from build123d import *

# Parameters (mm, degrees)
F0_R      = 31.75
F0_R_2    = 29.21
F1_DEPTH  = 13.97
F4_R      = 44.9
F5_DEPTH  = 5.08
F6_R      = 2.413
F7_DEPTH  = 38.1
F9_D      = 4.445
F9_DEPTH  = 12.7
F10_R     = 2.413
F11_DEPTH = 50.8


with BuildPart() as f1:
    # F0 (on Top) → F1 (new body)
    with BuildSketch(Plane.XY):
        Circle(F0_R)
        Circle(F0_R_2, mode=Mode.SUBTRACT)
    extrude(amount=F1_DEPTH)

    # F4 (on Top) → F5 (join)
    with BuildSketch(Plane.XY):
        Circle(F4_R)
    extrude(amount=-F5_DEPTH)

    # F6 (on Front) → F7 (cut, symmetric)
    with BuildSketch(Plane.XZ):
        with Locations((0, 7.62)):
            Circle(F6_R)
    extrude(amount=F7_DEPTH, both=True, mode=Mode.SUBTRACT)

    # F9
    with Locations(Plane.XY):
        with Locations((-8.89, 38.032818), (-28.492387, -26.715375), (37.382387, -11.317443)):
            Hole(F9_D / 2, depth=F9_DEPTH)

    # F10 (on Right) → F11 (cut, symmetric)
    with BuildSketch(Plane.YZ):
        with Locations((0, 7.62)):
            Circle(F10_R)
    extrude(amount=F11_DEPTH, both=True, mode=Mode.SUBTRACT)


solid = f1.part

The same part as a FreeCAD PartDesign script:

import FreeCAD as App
import Part
import Sketcher

V = App.Vector
Q = App.Units.Quantity

doc = App.newDocument("Part")
body = doc.addObject("PartDesign::Body", "Body")

# Sketch on XY plane
sketch1 = doc.addObject("Sketcher::SketchObject", "Sketch")
body.addObject(sketch1)
sketch1.AttachmentSupport = (doc.XY_Plane, [""])
sketch1.MapMode = "FlatFace"
sketch1.addGeometry(Part.Circle(V(0, 0, 0), V(0, 0, 1), 32), False)
sketch1.addGeometry(Part.Circle(V(0, 0, 0), V(0, 0, 1), 29), False)
sketch1.addConstraint(Sketcher.Constraint("Coincident", 0, 3, -1, 1))
sketch1.addConstraint(Sketcher.Constraint("Coincident", 1, 3, -1, 1))
sketch1.addConstraint(Sketcher.Constraint("Diameter", 0, Q("2.5 in")))
sketch1.addConstraint(Sketcher.Constraint("Diameter", 1, Q("2.3 in")))
pad1 = doc.addObject("PartDesign::Pad", "Pad")
body.addObject(pad1)
pad1.Profile = sketch1
pad1.Length = Q("0.55 in")

# Sketch on XY plane
sketch2 = doc.addObject("Sketcher::SketchObject", "Sketch001")
body.addObject(sketch2)
sketch2.AttachmentSupport = (doc.XY_Plane, [""])
sketch2.MapMode = "FlatFace"
sketch2.addGeometry(Part.Circle(V(0, 0, 0), V(0, 0, 1), 45), False)
sketch2.addConstraint(Sketcher.Constraint("Coincident", 0, 3, -1, 1))
sketch2.addConstraint(Sketcher.Constraint("Diameter", 0, 89.8))
pad2 = doc.addObject("PartDesign::Pad", "Pad001")
body.addObject(pad2)
pad2.Profile = sketch2
pad2.Length = Q("0.2 in")
pad2.Reversed = True

# Sketch on XZ plane
sketch3 = doc.addObject("Sketcher::SketchObject", "Sketch002")
body.addObject(sketch3)
sketch3.AttachmentSupport = (doc.XZ_Plane, [""])
sketch3.MapMode = "FlatFace"
sketch3.addGeometry(Part.Circle(V(0, 7.6, 0), V(0, 0, 1), 2.4), False)
sketch3.addConstraint(Sketcher.Constraint("PointOnObject", 0, 3, -2))
sketch3.addConstraint(Sketcher.Constraint("Diameter", 0, Q("0.19 in")))
sketch3.addConstraint(Sketcher.Constraint("DistanceY", -1, 1, 0, 3, Q("0.3 in")))
pocket1 = doc.addObject("PartDesign::Pocket", "Pocket")
body.addObject(pocket1)
pocket1.Profile = sketch3
pocket1.Length = Q("3 in")
pocket1.Midplane = True

# Sketch on XY plane
sketch4 = doc.addObject("Sketcher::SketchObject", "Sketch003")
body.addObject(sketch4)
sketch4.AttachmentSupport = (doc.XY_Plane, [""])
sketch4.MapMode = "FlatFace"
sketch4.addGeometry(Part.Circle(V(-8.9, 38, 0), V(0, 0, 1), 2.2), False)
sketch4.addGeometry(Part.Circle(V(-28.5, -26.7, 0), V(0, 0, 1), 2.2), False)
sketch4.addGeometry(Part.Circle(V(37.4, -11.3, 0), V(0, 0, 1), 2.2), False)
sketch4.addConstraint(Sketcher.Constraint("Equal", 0, 1))
sketch4.addConstraint(Sketcher.Constraint("Equal", 1, 2))
sketch4.addConstraint(Sketcher.Constraint("Diameter", 0, Q("0.175 in")))
sketch4.addConstraint(Sketcher.Constraint("DistanceX", 0, 3, -1, 1, Q("0.35 in")))
sketch4.addConstraint(Sketcher.Constraint("DistanceY", 2, 3, 0, 3, 49.350261))
sketch4.addConstraint(Sketcher.Constraint("DistanceY", -1, 1, 0, 3, 38.032818))
sketch4.addConstraint(Sketcher.Constraint("DistanceX", 1, 3, -1, 1, 28.492387))
sketch4.addConstraint(Sketcher.Constraint("DistanceY", 1, 3, -1, 1, 26.715375))
sketch4.addConstraint(Sketcher.Constraint("DistanceX", -1, 1, 2, 3, 37.382387))
doc.recompute()
hole = doc.addObject("PartDesign::Hole", "Hole")
body.addObject(hole)
hole.Profile = sketch4
hole.ThreadType = "None"
hole.Diameter = Q("0.175 in")
hole.DepthType = "Dimension"
hole.Depth = Q("0.5 in")
hole.DrillPoint = "Flat"

# Sketch on YZ plane
sketch5 = doc.addObject("Sketcher::SketchObject", "Sketch004")
body.addObject(sketch5)
sketch5.AttachmentSupport = (doc.YZ_Plane, [""])
sketch5.MapMode = "FlatFace"
sketch5.addGeometry(Part.Circle(V(0, 7.6, 0), V(0, 0, 1), 2.4), False)
sketch5.addConstraint(Sketcher.Constraint("PointOnObject", 0, 3, -2))
sketch5.addConstraint(Sketcher.Constraint("Diameter", 0, Q("0.19 in")))
sketch5.addConstraint(Sketcher.Constraint("DistanceY", -1, 1, 0, 3, Q("0.3 in")))
pocket2 = doc.addObject("PartDesign::Pocket", "Pocket001")
body.addObject(pocket2)
pocket2.Profile = sketch5
pocket2.Length = Q("4 in")
pocket2.Midplane = True

doc.recompute()
